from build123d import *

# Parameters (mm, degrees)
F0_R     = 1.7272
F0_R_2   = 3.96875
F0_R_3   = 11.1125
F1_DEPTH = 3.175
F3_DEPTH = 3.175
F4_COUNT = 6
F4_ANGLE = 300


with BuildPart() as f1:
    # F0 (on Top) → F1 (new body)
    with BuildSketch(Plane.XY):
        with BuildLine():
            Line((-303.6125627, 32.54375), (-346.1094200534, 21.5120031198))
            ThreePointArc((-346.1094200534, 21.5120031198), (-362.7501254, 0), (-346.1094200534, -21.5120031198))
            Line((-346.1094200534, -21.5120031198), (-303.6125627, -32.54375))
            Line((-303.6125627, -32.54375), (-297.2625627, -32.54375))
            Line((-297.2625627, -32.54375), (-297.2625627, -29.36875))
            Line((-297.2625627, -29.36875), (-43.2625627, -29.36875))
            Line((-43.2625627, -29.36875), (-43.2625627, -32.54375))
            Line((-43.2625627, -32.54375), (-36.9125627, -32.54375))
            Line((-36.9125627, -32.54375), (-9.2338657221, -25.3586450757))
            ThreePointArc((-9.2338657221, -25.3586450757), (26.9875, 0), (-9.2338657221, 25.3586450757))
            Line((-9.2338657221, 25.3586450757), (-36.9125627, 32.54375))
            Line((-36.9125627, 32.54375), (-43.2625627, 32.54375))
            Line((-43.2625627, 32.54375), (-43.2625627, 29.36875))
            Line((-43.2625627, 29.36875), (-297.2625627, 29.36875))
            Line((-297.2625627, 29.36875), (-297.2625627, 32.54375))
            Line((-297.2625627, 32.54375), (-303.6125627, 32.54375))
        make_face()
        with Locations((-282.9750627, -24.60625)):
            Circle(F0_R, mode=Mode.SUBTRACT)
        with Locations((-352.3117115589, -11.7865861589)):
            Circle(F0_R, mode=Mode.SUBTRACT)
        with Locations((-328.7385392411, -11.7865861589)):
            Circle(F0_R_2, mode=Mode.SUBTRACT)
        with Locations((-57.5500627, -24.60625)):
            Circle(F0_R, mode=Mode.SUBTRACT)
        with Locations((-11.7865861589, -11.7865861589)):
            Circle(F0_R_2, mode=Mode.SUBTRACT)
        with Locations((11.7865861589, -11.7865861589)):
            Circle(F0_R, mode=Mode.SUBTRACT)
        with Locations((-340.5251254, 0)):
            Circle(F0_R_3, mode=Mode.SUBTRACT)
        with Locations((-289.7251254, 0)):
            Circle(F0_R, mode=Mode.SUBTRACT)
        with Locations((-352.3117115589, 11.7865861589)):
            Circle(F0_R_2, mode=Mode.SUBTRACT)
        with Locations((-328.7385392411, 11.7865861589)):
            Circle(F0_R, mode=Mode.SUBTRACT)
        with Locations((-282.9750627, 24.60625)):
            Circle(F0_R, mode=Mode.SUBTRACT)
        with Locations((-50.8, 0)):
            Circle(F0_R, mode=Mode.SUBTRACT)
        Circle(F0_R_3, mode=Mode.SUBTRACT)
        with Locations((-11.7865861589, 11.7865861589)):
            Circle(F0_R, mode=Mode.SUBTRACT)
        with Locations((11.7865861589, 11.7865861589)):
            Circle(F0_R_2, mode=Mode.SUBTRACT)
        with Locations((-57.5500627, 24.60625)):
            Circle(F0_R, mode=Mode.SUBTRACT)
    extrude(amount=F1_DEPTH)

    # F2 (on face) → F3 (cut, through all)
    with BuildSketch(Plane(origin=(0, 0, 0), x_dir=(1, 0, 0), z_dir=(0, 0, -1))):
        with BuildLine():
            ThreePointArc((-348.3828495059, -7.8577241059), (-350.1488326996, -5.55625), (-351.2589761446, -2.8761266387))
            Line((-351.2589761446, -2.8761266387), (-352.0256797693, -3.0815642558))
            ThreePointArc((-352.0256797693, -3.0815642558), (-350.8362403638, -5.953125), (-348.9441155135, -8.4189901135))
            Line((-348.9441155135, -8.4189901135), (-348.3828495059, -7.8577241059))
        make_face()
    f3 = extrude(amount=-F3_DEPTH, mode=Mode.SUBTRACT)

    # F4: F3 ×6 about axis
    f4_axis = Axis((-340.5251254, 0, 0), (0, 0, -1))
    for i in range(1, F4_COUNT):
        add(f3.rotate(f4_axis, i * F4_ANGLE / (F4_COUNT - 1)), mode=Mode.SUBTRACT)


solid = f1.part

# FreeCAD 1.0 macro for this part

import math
import FreeCAD as App
import Part
import Sketcher
from FreeCAD import Vector
Q = App.Units.Quantity

doc = App.newDocument("Part")
params = doc.addObject("Spreadsheet::Sheet", "Params")
for row, (alias, value) in enumerate([
    ("sketch1_width", "10 in"),
    ("sketch1_diameter", "0.136 in"),
    ("sketch1_diameter2", "0.3125 in"),
    ("sketch1_diameter3", "0.875 in"),
    ("sketch1_radius", "0.875 in"),
    ("pad1_length", "0.125 in"),
    ("sketch2_radius", "0.4375 in"),
    ("sketch2_radius2", "0.46875 in"),
], start=1):
    params.set(f"A{row}", alias)
    params.set(f"B{row}", "=" + value)
    params.setAlias(f"B{row}", alias)

body = doc.addObject("PartDesign::Body", "Body")

# Sketch on XY plane
sketch1 = doc.addObject("Sketcher::SketchObject", "Sketch")
body.addObject(sketch1)
sketch1.AttachmentSupport = (doc.XY_Plane, [""])
sketch1.MapMode = "FlatFace"
sketch1.addGeometry(Part.LineSegment(Vector(-303.6, 32.5, 0), Vector(-346.1, 21.5, 0)), False)
sketch1.addGeometry(Part.ArcOfCircle(Part.Circle(Vector(-340.5, 0, 0), Vector(0, 0, 1), 22.2), math.radians(105), math.radians(255)), False)
sketch1.addGeometry(Part.LineSegment(Vector(-346.1, -21.5, 0), Vector(-303.6, -32.5, 0)), False)
sketch1.addGeometry(Part.LineSegment(Vector(-303.6, -32.5, 0), Vector(-297.3, -32.5, 0)), False)
sketch1.addGeometry(Part.LineSegment(Vector(-297.3, -32.5, 0), Vector(-297.3, -29.4, 0)), False)
sketch1.addGeometry(Part.LineSegment(Vector(-297.3, -29.4, 0), Vector(-43.3, -29.4, 0)), False)
sketch1.addGeometry(Part.LineSegment(Vector(-43.3, -29.4, 0), Vector(-43.3, -32.5, 0)), False)
sketch1.addGeometry(Part.LineSegment(Vector(-43.3, -32.5, 0), Vector(-36.9, -32.5, 0)), False)
sketch1.addGeometry(Part.LineSegment(Vector(-36.9, -32.5, 0), Vector(-9.2, -25.4, 0)), False)
sketch1.addGeometry(Part.ArcOfCircle(Part.Circle(Vector(0, 0, 0), Vector(0, 0, 1), 27), math.radians(-110), math.radians(110)), False)
sketch1.addGeometry(Part.LineSegment(Vector(-9.2, 25.4, 0), Vector(-36.9, 32.5, 0)), False)
sketch1.addGeometry(Part.LineSegment(Vector(-36.9, 32.5, 0), Vector(-43.3, 32.5, 0)), False)
sketch1.addGeometry(Part.LineSegment(Vector(-43.3, 32.5, 0), Vector(-43.3, 29.4, 0)), False)
sketch1.addGeometry(Part.LineSegment(Vector(-43.3, 29.4, 0), Vector(-297.3, 29.4, 0)), False)
sketch1.addGeometry(Part.LineSegment(Vector(-297.3, 29.4, 0), Vector(-297.3, 32.5, 0)), False)
sketch1.addGeometry(Part.LineSegment(Vector(-297.3, 32.5, 0), Vector(-303.6, 32.5, 0)), False)
sketch1.addGeometry(Part.Circle(Vector(-283, -24.6, 0), Vector(0, 0, 1), 1.7), False)
sketch1.addGeometry(Part.Circle(Vector(-352.3, -11.8, 0), Vector(0, 0, 1), 1.7), False)
sketch1.addGeometry(Part.Circle(Vector(-328.7, -11.8, 0), Vector(0, 0, 1), 4), False)
sketch1.addGeometry(Part.Circle(Vector(-57.6, -24.6, 0), Vector(0, 0, 1), 1.7), False)
sketch1.addGeometry(Part.Circle(Vector(-11.8, -11.8, 0), Vector(0, 0, 1), 4), False)
sketch1.addGeometry(Part.Circle(Vector(11.8, -11.8, 0), Vector(0, 0, 1), 1.7), False)
sketch1.addGeometry(Part.Circle(Vector(-340.5, 0, 0), Vector(0, 0, 1), 11.1), False)
sketch1.addGeometry(Part.Circle(Vector(-289.7, 0, 0), Vector(0, 0, 1), 1.7), False)
sketch1.addGeometry(Part.Circle(Vector(-352.3, 11.8, 0), Vector(0, 0, 1), 4), False)
sketch1.addGeometry(Part.Circle(Vector(-328.7, 11.8, 0), Vector(0, 0, 1), 1.7), False)
sketch1.addGeometry(Part.Circle(Vector(-283, 24.6, 0), Vector(0, 0, 1), 1.7), False)
sketch1.addGeometry(Part.Circle(Vector(-50.8, 0, 0), Vector(0, 0, 1), 1.7), False)
sketch1.addGeometry(Part.Circle(Vector(0, 0, 0), Vector(0, 0, 1), 11.1), False)
sketch1.addGeometry(Part.Circle(Vector(-11.8, 11.8, 0), Vector(0, 0, 1), 1.7), False)
sketch1.addGeometry(Part.Circle(Vector(11.8, 11.8, 0), Vector(0, 0, 1), 4), False)
sketch1.addGeometry(Part.Circle(Vector(-57.6, 24.6, 0), Vector(0, 0, 1), 1.7), False)
sketch1.addConstraint(Sketcher.Constraint("Tangent", 0, 2, 1, 1))
sketch1.addConstraint(Sketcher.Constraint("Tangent", 1, 2, 2, 1))
sketch1.addConstraint(Sketcher.Constraint("Coincident", 2, 2, 3, 1))
sketch1.addConstraint(Sketcher.Constraint("Coincident", 3, 2, 4, 1))
sketch1.addConstraint(Sketcher.Constraint("Coincident", 4, 2, 5, 1))
sketch1.addConstraint(Sketcher.Constraint("Coincident", 5, 2, 6, 1))
sketch1.addConstraint(Sketcher.Constraint("Coincident", 6, 2, 7, 1))
sketch1.addConstraint(Sketcher.Constraint("Coincident", 7, 2, 8, 1))
sketch1.addConstraint(Sketcher.Constraint("Coincident", 8, 2, 9, 1))
sketch1.addConstraint(Sketcher.Constraint("Coincident", 9, 2, 10, 1))
sketch1.addConstraint(Sketcher.Constraint("Coincident", 10, 2, 11, 1))
sketch1.addConstraint(Sketcher.Constraint("Coincident", 11, 2, 12, 1))
sketch1.addConstraint(Sketcher.Constraint("Coincident", 12, 2, 13, 1))
sketch1.addConstraint(Sketcher.Constraint("Coincident", 13, 2, 14, 1))
sketch1.addConstraint(Sketcher.Constraint("Coincident", 14, 2, 15, 1))
sketch1.addConstraint(Sketcher.Constraint("Coincident", 15, 2, 0, 1))
sketch1.addConstraint(Sketcher.Constraint("Horizontal", 3))
sketch1.addConstraint(Sketcher.Constraint("Vertical", 4))
sketch1.addConstraint(Sketcher.Constraint("Horizontal", 5))
sketch1.addConstraint(Sketcher.Constraint("Vertical", 6))
sketch1.addConstraint(Sketcher.Constraint("Horizontal", 7))
sketch1.addConstraint(Sketcher.Constraint("Horizontal", 11))
sketch1.addConstraint(Sketcher.Constraint("Vertical", 12))
sketch1.addConstraint(Sketcher.Constraint("Horizontal", 13))
sketch1.addConstraint(Sketcher.Constraint("Vertical", 14))
sketch1.addConstraint(Sketcher.Constraint("Horizontal", 15))
sketch1.addConstraint(Sketcher.Constraint("Coincident", 9, 3, -1, 1))
sketch1.addConstraint(Sketcher.Constraint("Coincident", 28, 3, -1, 1))
sketch1.addConstraint(Sketcher.Constraint("Coincident", 22, 3, 1, 3))
sketch1.addConstraint(Sketcher.Constraint("Equal", 16, 17))
sketch1.addConstraint(Sketcher.Constraint("Equal", 17, 19))
sketch1.addConstraint(Sketcher.Constraint("Equal", 18, 20))
sketch1.addConstraint(Sketcher.Constraint("Equal", 19, 21))
sketch1.addConstraint(Sketcher.Constraint("Equal", 21, 23))
sketch1.addConstraint(Sketcher.Constraint("Equal", 20, 24))
sketch1.addConstraint(Sketcher.Constraint("Equal", 23, 25))
sketch1.addConstraint(Sketcher.Constraint("Equal", 25, 26))
sketch1.addConstraint(Sketcher.Constraint("Equal", 26, 27))
sketch1.addConstraint(Sketcher.Constraint("Equal", 22, 28))
sketch1.addConstraint(Sketcher.Constraint("Equal", 27, 29))
sketch1.addConstraint(Sketcher.Constraint("Equal", 24, 30))
sketch1.addConstraint(Sketcher.Constraint("Equal", 29, 31))
sketch1.addConstraint(Sketcher.Constraint("Symmetric", 21, 3, 29, 3, -1, 1))
sketch1.addConstraint(Sketcher.Constraint("Symmetric", 20, 3, 30, 3, -1, 1))
sketch1.addConstraint(Sketcher.Constraint("Symmetric", 20, 3, 21, 3, -2))
sketch1.addConstraint(Sketcher.Constraint("Symmetric", 17, 3, 24, 3, -1))
sketch1.addConstraint(Sketcher.Constraint("Symmetric", 18, 3, 25, 3, -1))
sketch1.addConstraint(Sketcher.Constraint("Symmetric", 16, 3, 26, 3, -1))
sketch1.addConstraint(Sketcher.Constraint("Symmetric", 19, 3, 31, 3, -1))
sketch1.addConstraint(Sketcher.Constraint("Symmetric", 0, 2, 1, 2, -1))
sketch1.addConstraint(Sketcher.Constraint("Symmetric", 7, 2, 10, 2, -1))
sketch1.addConstraint(Sketcher.Constraint("Symmetric", 5, 2, 12, 2, -1))
sketch1.addConstraint(Sketcher.Constraint("Symmetric", 3, 2, 14, 2, -1))
sketch1.addConstraint(Sketcher.Constraint("PointOnObject", 23, 3, -1))
sketch1.addConstraint(Sketcher.Constraint("PointOnObject", 27, 3, -1))
sketch1.addConstraint(Sketcher.Constraint("Parallel", 0, 8))
sketch1.addConstraint(Sketcher.Constraint("Parallel", 2, 10))
sketch1.addConstraint(Sketcher.Constraint("Horizontal", 17, 3, 18, 3))
sketch1.addConstraint(Sketcher.Constraint("Horizontal", 16, 3, 19, 3))
sketch1.addConstraint(Sketcher.Constraint("Horizontal", 18, 3, 20, 3))
sketch1.addConstraint(Sketcher.Constraint("Horizontal", 3, 2, 6, 2))
sketch1.addConstraint(Sketcher.Constraint("Equal", 3, 7))
sketch1.addConstraint(Sketcher.Constraint("DistanceX", 5, 1, 5, 2, Q("10 in")))
sketch1.addConstraint(Sketcher.Constraint("Diameter", 16, Q("0.136 in")))
sketch1.addConstraint(Sketcher.Constraint("Diameter", 18, Q("0.3125 in")))
sketch1.addConstraint(Sketcher.Constraint("Diameter", 22, Q("0.875 in")))
sketch1.addConstraint(Sketcher.Constraint("DistanceX", 27, 3, -1, 1, Q("2 in")))
sketch1.addConstraint(Sketcher.Constraint("Radius", 1, Q("0.875 in")))
sketch1.addConstraint(Sketcher.Constraint("Radius", 9, Q("1.0625 in")))
sketch1.addConstraint(Sketcher.Constraint("DistanceX", 1, 3, 23, 3, Q("2 in")))
sketch1.addConstraint(Sketcher.Constraint("DistanceX", 3, 1, 3, 2, Q("0.25 in")))
sketch1.addConstraint(Sketcher.Constraint("DistanceY", 4, 1, 4, 2, Q("0.125 in")))
sketch1.addConstraint(Sketcher.Constraint("DistanceY", 16, 3, -1, 1, Q("0.96875 in")))
sketch1.addConstraint(Sketcher.Constraint("DistanceY", 2, 2, -1, 1, Q("1.28125 in")))
sketch1.addConstraint(Sketcher.Constraint("DistanceX", 16, 3, 19, 3, Q("8.875 in")))
sketch1.addConstraint(Sketcher.Constraint("DistanceX", 2, 2, 16, 3, Q("0.8125 in")))
sketch1.addConstraint(Sketcher.Constraint("Distance", 0, 43.905379))
sketch1.addConstraint(Sketcher.Constraint("DistanceX", 17, 3, -1, 1, 352.311712))
sketch1.addConstraint(Sketcher.Constraint("DistanceX", 18, 3, -1, 1, 328.738539))
sketch1.addConstraint(Sketcher.Constraint("DistanceX", 0, 2, -1, 1, 346.10942))
sketch1.addConstraint(Sketcher.Constraint("DistanceX", 1, 3, 20, 3, 328.738539))
sketch1.addConstraint(Sketcher.Constraint("DistanceY", 17, 3, 0, 2, 33.298589))
sketch1.setExpression("Constraints[62]", "Params.sketch1_width")
sketch1.setExpression("Constraints[63]", "Params.sketch1_diameter")
sketch1.setExpression("Constraints[64]", "Params.sketch1_diameter2")
sketch1.setExpression("Constraints[65]", "Params.sketch1_diameter3")
sketch1.setExpression("Constraints[67]", "Params.sketch1_radius")
pad1 = doc.addObject("PartDesign::Pad", "Pad")
body.addObject(pad1)
pad1.Profile = sketch1
pad1.setExpression("Length", "Params.pad1_length")

# Sketch on XY plane
sketch2 = doc.addObject("Sketcher::SketchObject", "Sketch001")
body.addObject(sketch2)
sketch2.AttachmentSupport = (doc.XY_Plane, [""])
sketch2.MapMode = "FlatFace"
sketch2.addGeometry(Part.ArcOfCircle(Part.Circle(Vector(-340.5, 0, 0), Vector(0, 0, 1), 11.1), math.radians(135), math.radians(165)), False)
sketch2.addGeometry(Part.LineSegment(Vector(-351.3, 2.9, 0), Vector(-352, 3.1, 0)), False)
sketch2.addGeometry(Part.ArcOfCircle(Part.Circle(Vector(-340.5, 0, 0), Vector(0, 0, 1), 11.9), math.radians(135), math.radians(165)), False)
sketch2.addGeometry(Part.LineSegment(Vector(-348.9, 8.4, 0), Vector(-348.4, 7.9, 0)), False)
sketch2.addConstraint(Sketcher.Constraint("Coincident", 0, 2, 1, 1))
sketch2.addConstraint(Sketcher.Constraint("Coincident", 1, 2, 2, 2))
sketch2.addConstraint(Sketcher.Constraint("Coincident", 2, 1, 3, 1))
sketch2.addConstraint(Sketcher.Constraint("Coincident", 3, 2, 0, 1))
sketch2.addConstraint(Sketcher.Constraint("Coincident", 2, 3, 0, 3))
sketch2.addConstraint(Sketcher.Constraint("PointOnObject", 0, 3, -1))
sketch2.addConstraint(Sketcher.Constraint("Angle", 1, Q("165 deg")))
sketch2.addConstraint(Sketcher.Constraint("Angle", 3, Q("-45 deg")))
sketch2.addConstraint(Sketcher.Constraint("Radius", 0, Q("0.4375 in")))
sketch2.addConstraint(Sketcher.Constraint("Radius", 2, Q("0.46875 in")))
sketch2.addConstraint(Sketcher.Constraint("DistanceX", 1, 2, -1, 1, 352.02568))
sketch2.addConstraint(Sketcher.Constraint("DistanceY", -1, 1, 2, 1, 8.41899))
sketch2.addConstraint(Sketcher.Constraint("DistanceX", 3, 2, -1, 1, 348.38285))
sketch2.setExpression("Constraints[8]", "Params.sketch2_radius")
sketch2.setExpression("Constraints[9]", "Params.sketch2_radius2")
pocket1 = doc.addObject("PartDesign::Pocket", "Pocket")
body.addObject(pocket1)
pocket1.Profile = sketch2
pocket1.Type = "ThroughAll"
pocket1.Reversed = True
doc.recompute()

datumline = doc.addObject("PartDesign::Line", "DatumLine")
body.addObject(datumline)
datumline.Placement = App.Placement(Vector(-340.525125, 0, 0), App.Rotation(Vector(0, 0, 1), Vector(0, 0, -1)))
polarpattern = doc.addObject("PartDesign::PolarPattern", "PolarPattern")
body.addObject(polarpattern)
polarpattern.Originals = [pocket1]
polarpattern.Axis = (datumline, [""])
polarpattern.Angle = 360
polarpattern.Occurrences = 6
body.Tip = polarpattern

doc.recompute()
